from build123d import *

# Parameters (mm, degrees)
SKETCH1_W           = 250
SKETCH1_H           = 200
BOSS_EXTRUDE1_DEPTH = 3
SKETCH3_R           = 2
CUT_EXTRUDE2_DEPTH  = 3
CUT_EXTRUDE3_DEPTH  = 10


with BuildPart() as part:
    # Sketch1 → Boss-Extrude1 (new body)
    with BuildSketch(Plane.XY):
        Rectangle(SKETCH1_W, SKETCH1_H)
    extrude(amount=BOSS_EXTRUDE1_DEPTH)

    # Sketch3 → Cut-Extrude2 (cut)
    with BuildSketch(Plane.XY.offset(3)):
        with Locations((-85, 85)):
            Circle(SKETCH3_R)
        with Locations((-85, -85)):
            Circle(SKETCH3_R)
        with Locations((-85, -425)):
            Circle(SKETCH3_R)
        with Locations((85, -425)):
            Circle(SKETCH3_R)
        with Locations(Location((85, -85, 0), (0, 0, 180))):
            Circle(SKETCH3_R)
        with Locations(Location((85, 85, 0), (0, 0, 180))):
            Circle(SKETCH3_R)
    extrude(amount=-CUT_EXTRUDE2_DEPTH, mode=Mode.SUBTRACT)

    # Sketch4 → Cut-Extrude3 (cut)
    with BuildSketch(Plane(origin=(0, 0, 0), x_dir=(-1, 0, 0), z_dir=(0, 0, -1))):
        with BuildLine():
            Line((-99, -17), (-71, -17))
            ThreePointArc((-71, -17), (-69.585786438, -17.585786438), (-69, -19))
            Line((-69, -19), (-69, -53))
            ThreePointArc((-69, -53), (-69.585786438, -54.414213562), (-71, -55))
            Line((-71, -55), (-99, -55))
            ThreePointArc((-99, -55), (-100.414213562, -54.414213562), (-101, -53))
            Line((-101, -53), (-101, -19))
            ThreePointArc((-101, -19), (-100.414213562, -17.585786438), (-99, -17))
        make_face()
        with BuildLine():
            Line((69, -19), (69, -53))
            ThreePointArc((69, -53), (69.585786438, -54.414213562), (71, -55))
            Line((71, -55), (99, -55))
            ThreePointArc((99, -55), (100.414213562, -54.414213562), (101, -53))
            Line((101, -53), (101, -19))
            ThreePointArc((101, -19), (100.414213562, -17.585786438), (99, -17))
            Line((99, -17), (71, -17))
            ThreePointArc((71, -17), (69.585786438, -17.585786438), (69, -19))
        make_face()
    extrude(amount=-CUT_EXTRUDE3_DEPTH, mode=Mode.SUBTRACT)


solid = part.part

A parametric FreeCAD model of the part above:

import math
import FreeCAD as App
import Part
import Sketcher
Q = App.Units.Quantity

doc = App.newDocument("Part")
body = doc.addObject("PartDesign::Body", "Body")

# Sketch on XY plane
sketch1 = body.newObject("Sketcher::SketchObject", "Sketch")
sketch1.AttachmentSupport = (doc.getObject("XY_Plane"), [""])
sketch1.MapMode = "FlatFace"
sketch1.addGeometry([
    Part.LineSegment(App.Vector(-125, 100, 0), App.Vector(-125, -100, 0)),
    Part.LineSegment(App.Vector(-125, -100, 0), App.Vector(125, -100, 0)),
    Part.LineSegment(App.Vector(125, -100, 0), App.Vector(125, 100, 0)),
    Part.LineSegment(App.Vector(125, 100, 0), App.Vector(-125, 100, 0)),
], False)
sketch1.addConstraint([
    Sketcher.Constraint("Coincident", 0, 2, 1, 1),
    Sketcher.Constraint("Coincident", 1, 2, 2, 1),
    Sketcher.Constraint("Coincident", 2, 2, 3, 1),
    Sketcher.Constraint("Coincident", 3, 2, 0, 1),
    Sketcher.Constraint("Vertical", 0),
    Sketcher.Constraint("Horizontal", 1),
    Sketcher.Constraint("Vertical", 2),
    Sketcher.Constraint("Horizontal", 3),
    Sketcher.Constraint("Symmetric", 0, 2, 2, 2, -1, 1),
    Sketcher.Constraint("DistanceX", 1, 1, 1, 2, Q("250 mm")),
    Sketcher.Constraint("DistanceY", 0, 2, 0, 1, Q("200 mm")),
])
pad1 = body.newObject("PartDesign::Pad", "Pad")
pad1.Profile = sketch1
pad1.Length = 3

# Sketch on XY plane
sketch2 = body.newObject("Sketcher::SketchObject", "Sketch001")
sketch2.AttachmentSupport = (doc.getObject("XY_Plane"), [""])
sketch2.MapMode = "FlatFace"
sketch2.AttachmentOffset = App.Placement(App.Vector(0, 0, 3), App.Rotation())
sketch2.addGeometry([
    Part.Circle(App.Vector(-85, 85, 0), App.Vector(0, 0, 1), 2),  # 0
    Part.Circle(App.Vector(-85, -85, 0), App.Vector(0, 0, 1), 2),  # 1
    Part.Circle(App.Vector(-85, -425, 0), App.Vector(0, 0, 1), 2),  # 2
    Part.Circle(App.Vector(85, -425, 0), App.Vector(0, 0, 1), 2),  # 3
    Part.Circle(App.Vector(85, -85, 0), App.Vector(0, 0, 1), 2),  # 4
    Part.Circle(App.Vector(85, 85, 0), App.Vector(0, 0, 1), 2),  # 5
], False)
sketch2.addConstraint([
    Sketcher.Constraint("Equal", 0, 1),
    Sketcher.Constraint("Equal", 1, 2),
    Sketcher.Constraint("Equal", 2, 3),
    Sketcher.Constraint("Equal", 3, 4),
    Sketcher.Constraint("Equal", 4, 5),
    Sketcher.Constraint("Symmetric", 0, 3, 4, 3, -1, 1),
    Sketcher.Constraint("Symmetric", 1, 3, 5, 3, -1, 1),
    Sketcher.Constraint("Symmetric", 2, 3, 3, 3, -2),
    Sketcher.Constraint("Symmetric", 1, 3, 4, 3, -2),
    Sketcher.Constraint("Vertical", 1, 3, 2, 3),
    Sketcher.Constraint("Diameter", 0, Q("4 mm")),
    Sketcher.Constraint("DistanceX", 0, 3, -1, 1, Q("85 mm")),
    Sketcher.Constraint("DistanceY", -1, 1, 0, 3, Q("85 mm")),
    Sketcher.Constraint("DistanceY", 2, 3, -1, 1, Q("425 mm")),
])
pocket1 = body.newObject("PartDesign::Pocket", "Pocket")
pocket1.Profile = sketch2
pocket1.Length = 3

# Sketch on XY plane
sketch3 = body.newObject("Sketcher::SketchObject", "Sketch002")
sketch3.AttachmentSupport = (doc.getObject("XY_Plane"), [""])
sketch3.MapMode = "FlatFace"
sketch3.addGeometry([
    Part.LineSegment(App.Vector(71, -17, 0), App.Vector(99, -17, 0)),  # 0
    Part.ArcOfCircle(Part.Circle(App.Vector(99, -19, 0), App.Vector(0, 0, 1), 2), math.radians(0), math.radians(90)),  # 1
    Part.LineSegment(App.Vector(101, -19, 0), App.Vector(101, -53, 0)),  # 2
    Part.ArcOfCircle(Part.Circle(App.Vector(99, -53, 0), App.Vector(0, 0, 1), 2), math.radians(-90), math.radians(0)),  # 3
    Part.LineSegment(App.Vector(99, -55, 0), App.Vector(71, -55, 0)),  # 4
    Part.ArcOfCircle(Part.Circle(App.Vector(71, -53, 0), App.Vector(0, 0, 1), 2), math.radians(-180), math.radians(-90)),  # 5
    Part.LineSegment(App.Vector(69, -53, 0), App.Vector(69, -19, 0)),  # 6
    Part.ArcOfCircle(Part.Circle(App.Vector(71, -19, 0), App.Vector(0, 0, 1), 2), math.radians(90), math.radians(180)),  # 7
    Part.LineSegment(App.Vector(-69, -19, 0), App.Vector(-69, -53, 0)),  # 8
    Part.ArcOfCircle(Part.Circle(App.Vector(-71, -53, 0), App.Vector(0, 0, 1), 2), math.radians(-90), math.radians(0)),  # 9
    Part.LineSegment(App.Vector(-71, -55, 0), App.Vector(-99, -55, 0)),  # 10
    Part.ArcOfCircle(Part.Circle(App.Vector(-99, -53, 0), App.Vector(0, 0, 1), 2), math.radians(-180), math.radians(-90)),  # 11
    Part.LineSegment(App.Vector(-101, -53, 0), App.Vector(-101, -19, 0)),  # 12
    Part.ArcOfCircle(Part.Circle(App.Vector(-99, -19, 0), App.Vector(0, 0, 1), 2), math.radians(90), math.radians(180)),  # 13
    Part.LineSegment(App.Vector(-99, -17, 0), App.Vector(-71, -17, 0)),  # 14
    Part.ArcOfCircle(Part.Circle(App.Vector(-71, -19, 0), App.Vector(0, 0, 1), 2), math.radians(0), math.radians(90)),  # 15
], False)
sketch3.addConstraint([
    Sketcher.Constraint("Tangent", 0, 2, 1, 2),
    Sketcher.Constraint("Tangent", 1, 1, 2, 1),
    Sketcher.Constraint("Tangent", 2, 2, 3, 2),
    Sketcher.Constraint("Tangent", 3, 1, 4, 1),
    Sketcher.Constraint("Tangent", 4, 2, 5, 2),
    Sketcher.Constraint("Tangent", 5, 1, 6, 1),
    Sketcher.Constraint("Tangent", 6, 2, 7, 2),
    Sketcher.Constraint("Tangent", 7, 1, 0, 1),
    Sketcher.Constraint("Tangent", 8, 2, 9, 2),
    Sketcher.Constraint("Tangent", 9, 1, 10, 1),
    Sketcher.Constraint("Tangent", 10, 2, 11, 2),
    Sketcher.Constraint("Tangent", 11, 1, 12, 1),
    Sketcher.Constraint("Tangent", 12, 2, 13, 2),
    Sketcher.Constraint("Tangent", 13, 1, 14, 1),
    Sketcher.Constraint("Tangent", 14, 2, 15, 2),
    Sketcher.Constraint("Tangent", 15, 1, 8, 1),
    Sketcher.Constraint("Horizontal", 0),
    Sketcher.Constraint("Vertical", 2),
    Sketcher.Constraint("Horizontal", 4),
    Sketcher.Constraint("Vertical", 6),
    Sketcher.Constraint("Vertical", 8),
    Sketcher.Constraint("Horizontal", 10),
    Sketcher.Constraint("Vertical", 12),
    Sketcher.Constraint("Horizontal", 14),
    Sketcher.Constraint("Equal", 1, 3),
    Sketcher.Constraint("Equal", 3, 5),
    Sketcher.Constraint("Equal", 5, 7),
    Sketcher.Constraint("Equal", 7, 9),
    Sketcher.Constraint("Equal", 9, 11),
    Sketcher.Constraint("Equal", 11, 13),
    Sketcher.Constraint("Equal", 13, 15),
    Sketcher.Constraint("Symmetric", 5, 3, 9, 3, -2),
    Sketcher.Constraint("Symmetric", 1, 3, 13, 3, -2),
    Sketcher.Constraint("Radius", 1, Q("2 mm")),
    Sketcher.Constraint("DistanceX", 0, 1, 0, 2, Q("28 mm")),
    Sketcher.Constraint("DistanceY", 2, 2, 2, 1, Q("34 mm")),
    Sketcher.Constraint("DistanceX", -1, 1, 1, 3, Q("99 mm")),
    Sketcher.Constraint("DistanceY", 1, 3, -1, 1, Q("19 mm")),
])
pocket2 = body.newObject("PartDesign::Pocket", "Pocket001")
pocket2.Profile = sketch3
pocket2.Length = 10
pocket2.Reversed = True

doc.recompute()
